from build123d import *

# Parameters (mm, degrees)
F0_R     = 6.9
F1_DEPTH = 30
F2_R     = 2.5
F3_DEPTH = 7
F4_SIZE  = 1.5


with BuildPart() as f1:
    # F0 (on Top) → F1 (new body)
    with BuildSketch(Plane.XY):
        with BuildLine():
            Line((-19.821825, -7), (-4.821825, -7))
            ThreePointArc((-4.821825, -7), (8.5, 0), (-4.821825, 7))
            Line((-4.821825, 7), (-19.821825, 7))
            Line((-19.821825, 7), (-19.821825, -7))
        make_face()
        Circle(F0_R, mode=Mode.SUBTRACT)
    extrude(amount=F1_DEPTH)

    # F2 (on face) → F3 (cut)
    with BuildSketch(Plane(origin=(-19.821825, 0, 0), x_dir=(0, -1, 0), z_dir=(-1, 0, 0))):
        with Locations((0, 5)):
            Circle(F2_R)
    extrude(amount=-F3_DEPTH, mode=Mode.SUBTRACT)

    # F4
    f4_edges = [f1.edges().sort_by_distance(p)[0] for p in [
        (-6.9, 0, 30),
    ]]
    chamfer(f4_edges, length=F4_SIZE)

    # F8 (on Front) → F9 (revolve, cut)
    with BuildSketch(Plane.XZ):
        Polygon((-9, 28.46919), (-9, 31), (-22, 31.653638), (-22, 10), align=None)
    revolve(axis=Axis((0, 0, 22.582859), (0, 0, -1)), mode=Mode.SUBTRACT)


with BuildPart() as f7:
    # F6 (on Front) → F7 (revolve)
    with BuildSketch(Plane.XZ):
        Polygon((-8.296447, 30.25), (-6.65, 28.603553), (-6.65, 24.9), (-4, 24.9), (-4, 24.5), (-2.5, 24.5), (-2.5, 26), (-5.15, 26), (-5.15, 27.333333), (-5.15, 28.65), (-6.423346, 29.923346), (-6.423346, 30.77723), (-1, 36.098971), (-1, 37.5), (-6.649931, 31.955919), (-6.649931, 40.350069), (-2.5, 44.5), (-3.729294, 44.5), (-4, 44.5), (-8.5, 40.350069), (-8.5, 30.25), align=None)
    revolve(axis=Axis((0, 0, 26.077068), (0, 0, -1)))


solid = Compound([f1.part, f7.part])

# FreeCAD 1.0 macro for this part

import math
import FreeCAD as App
import Part
import Sketcher
from FreeCAD import Vector
Q = App.Units.Quantity


def edges_at(feature, points):
    """Names of the edges that pass closest to the given points."""
    edges = feature.Shape.Edges
    near = lambda p: min(range(len(edges)), key=lambda i: edges[i].distToShape(Part.Vertex(*p))[0])
    return sorted({f"Edge{near(p) + 1}" for p in points})

doc = App.newDocument("Part")
params = doc.addObject("Spreadsheet::Sheet", "Params")
for row, (alias, value) in enumerate([
    ("sketch1_diameter", "13.8 mm"),
    ("sketch1_radius", "8.5 mm"),
    ("sketch1_width", "15 mm"),
    ("sketch1_height", "14 mm"),
    ("pad1_length", "30 mm"),
    ("sketch2_diameter", "5 mm"),
    ("pocket1_length", "7 mm"),
    ("chamfer_size", "1.5 mm"),
    ("groove_angle", "360 deg"),
    ("sketch4_width", "1.5 mm"),
    ("sketch4_height", "0.4 mm"),
    ("sketch4_width2", "2.65 mm"),
    ("revolution_angle", "360 deg"),
], start=1):
    params.set(f"A{row}", alias)
    params.set(f"B{row}", "=" + value)
    params.setAlias(f"B{row}", alias)

body = doc.addObject("PartDesign::Body", "Body")

# Sketch on XY plane
sketch1 = doc.addObject("Sketcher::SketchObject", "Sketch")
body.addObject(sketch1)
sketch1.AttachmentSupport = (doc.XY_Plane, [""])
sketch1.MapMode = "FlatFace"
sketch1.addGeometry([
    Part.LineSegment(Vector(-20, -7, 0), Vector(-5, -7, 0)),  # 0
    Part.ArcOfCircle(Part.Circle(Vector(0, 0, 0), Vector(0, 0, 1), 8), math.radians(-125), math.radians(125)),  # 1
    Part.LineSegment(Vector(-5, 7, 0), Vector(-20, 7, 0)),  # 2
    Part.LineSegment(Vector(-20, 7, 0), Vector(-20, -7, 0)),  # 3
    Part.Circle(Vector(0, 0, 0), Vector(0, 0, 1), 7),  # 4
], False)
sketch1.addConstraint([
    Sketcher.Constraint("Coincident", 0, 2, 1, 1),
    Sketcher.Constraint("Coincident", 1, 2, 2, 1),
    Sketcher.Constraint("Coincident", 2, 2, 3, 1),
    Sketcher.Constraint("Coincident", 3, 2, 0, 1),
    Sketcher.Constraint("Horizontal", 0),
    Sketcher.Constraint("Horizontal", 2),
    Sketcher.Constraint("Vertical", 3),
    Sketcher.Constraint("Coincident", 1, 3, -1, 1),
    Sketcher.Constraint("Coincident", 4, 3, -1, 1),
    Sketcher.Constraint("Vertical", 0, 2, 1, 2),
    Sketcher.Constraint("Diameter", 4, Q("13.8 mm")),
    Sketcher.Constraint("Radius", 1, Q("8.5 mm")),
    Sketcher.Constraint("DistanceX", 0, 1, 0, 2, Q("15 mm")),
    Sketcher.Constraint("DistanceY", 3, 2, 3, 1, Q("14 mm")),
])
sketch1.setExpression("Constraints[10]", "Params.sketch1_diameter")
sketch1.setExpression("Constraints[11]", "Params.sketch1_radius")
sketch1.setExpression("Constraints[12]", "Params.sketch1_width")
sketch1.setExpression("Constraints[13]", "Params.sketch1_height")
pad1 = doc.addObject("PartDesign::Pad", "Pad")
body.addObject(pad1)
pad1.Profile = sketch1
pad1.setExpression("Length", "Params.pad1_length")

# Sketch on YZ plane
sketch2 = doc.addObject("Sketcher::SketchObject", "Sketch001")
body.addObject(sketch2)
sketch2.AttachmentSupport = (doc.YZ_Plane, [""])
sketch2.MapMode = "FlatFace"
sketch2.AttachmentOffset = App.Placement(Vector(0, 0, -19.821825), App.Rotation())
sketch2.addGeometry(Part.Circle(Vector(0, 5, 0), Vector(0, 0, 1), 2.5), False)
sketch2.addConstraint([
    Sketcher.Constraint("PointOnObject", 0, 3, -2),
    Sketcher.Constraint("Diameter", 0, Q("5 mm")),
    Sketcher.Constraint("DistanceY", -1, 1, 0, 3, Q("5 mm")),
])
sketch2.setExpression("Constraints[1]", "Params.sketch2_diameter")
pocket1 = doc.addObject("PartDesign::Pocket", "Pocket")
body.addObject(pocket1)
pocket1.Profile = sketch2
pocket1.setExpression("Length", "Params.pocket1_length")
pocket1.Reversed = True
doc.recompute()

chamfer = doc.addObject("PartDesign::Chamfer", "Chamfer")
body.addObject(chamfer)
chamfer.Base = (pocket1, edges_at(pocket1, [(-6.9, 0, 30)]))
chamfer.setExpression("Size", "Params.chamfer_size")

# Sketch on XZ plane
sketch3 = doc.addObject("Sketcher::SketchObject", "Sketch002")
body.addObject(sketch3)
sketch3.AttachmentSupport = (doc.XZ_Plane, [""])
sketch3.MapMode = "FlatFace"
sketch3.addGeometry([
    Part.LineSegment(Vector(-9, 28.5, 0), Vector(-9, 31, 0)),
    Part.LineSegment(Vector(-9, 31, 0), Vector(-22, 31.7, 0)),
    Part.LineSegment(Vector(-22, 31.7, 0), Vector(-22, 10, 0)),
    Part.LineSegment(Vector(-22, 10, 0), Vector(-9, 28.5, 0)),
], False)
sketch3.addConstraint([
    Sketcher.Constraint("Coincident", 0, 2, 1, 1),
    Sketcher.Constraint("Coincident", 1, 2, 2, 1),
    Sketcher.Constraint("Coincident", 2, 2, 3, 1),
    Sketcher.Constraint("Coincident", 3, 2, 0, 1),
    Sketcher.Constraint("Vertical", 0),
    Sketcher.Constraint("Vertical", 2),
    Sketcher.Constraint("DistanceX", 0, 2, -1, 1, Q("9 mm")),
    Sketcher.Constraint("DistanceY", -1, 1, 0, 2, Q("31 mm")),
    Sketcher.Constraint("DistanceX", 1, 2, -1, 1, Q("22 mm")),
    Sketcher.Constraint("DistanceY", -1, 1, 2, 2, Q("10 mm")),
    Sketcher.Constraint("DistanceY", 0, 1, 0, 2, Q("2.53081 mm")),
    Sketcher.Constraint("DistanceY", 2, 2, 2, 1, Q("21.653638 mm")),
])
groove = doc.addObject("PartDesign::Groove", "Groove")
body.addObject(groove)
groove.Profile = sketch3
groove.ReferenceAxis = (sketch3, ["V_Axis"])
groove.setExpression("Angle", "Params.groove_angle")
body2 = doc.addObject("PartDesign::Body", "Body001")

# Sketch on XZ plane
sketch4 = doc.addObject("Sketcher::SketchObject", "Sketch003")
body2.addObject(sketch4)
sketch4.AttachmentSupport = (doc.getObject("XZ_Plane001"), [""])
sketch4.MapMode = "FlatFace"
sketch4.addGeometry([
    Part.LineSegment(Vector(-8.3, 30.25, 0), Vector(-6.65, 28.6, 0)),  # 0
    Part.LineSegment(Vector(-6.65, 28.6, 0), Vector(-6.65, 24.9, 0)),  # 1
    Part.LineSegment(Vector(-6.65, 24.9, 0), Vector(-4, 24.9, 0)),  # 2
    Part.LineSegment(Vector(-4, 24.9, 0), Vector(-4, 24.5, 0)),  # 3
    Part.LineSegment(Vector(-4, 24.5, 0), Vector(-2.5, 24.5, 0)),  # 4
    Part.LineSegment(Vector(-2.5, 24.5, 0), Vector(-2.5, 26, 0)),  # 5
    Part.LineSegment(Vector(-2.5, 26, 0), Vector(-5.15, 26, 0)),  # 6
    Part.LineSegment(Vector(-5.15, 26, 0), Vector(-5.15, 28.65, 0)),  # 7
    Part.LineSegment(Vector(-5.15, 28.65, 0), Vector(-6.42, 29.92, 0)),  # 8
    Part.LineSegment(Vector(-6.42, 29.92, 0), Vector(-6.42, 30.78, 0)),  # 9
    Part.LineSegment(Vector(-6.42, 30.78, 0), Vector(-1, 36.1, 0)),  # 10
    Part.LineSegment(Vector(-1, 36.1, 0), Vector(-1, 37.5, 0)),  # 11
    Part.LineSegment(Vector(-1, 37.5, 0), Vector(-6.65, 31.96, 0)),  # 12
    Part.LineSegment(Vector(-6.65, 31.96, 0), Vector(-6.65, 40.35, 0)),  # 13
    Part.LineSegment(Vector(-6.65, 40.35, 0), Vector(-2.5, 44.5, 0)),  # 14
    Part.LineSegment(Vector(-2.5, 44.5, 0), Vector(-4, 44.5, 0)),  # 15
    Part.LineSegment(Vector(-4, 44.5, 0), Vector(-8.5, 40.35, 0)),  # 16
    Part.LineSegment(Vector(-8.5, 40.35, 0), Vector(-8.5, 30.25, 0)),  # 17
    Part.LineSegment(Vector(-8.5, 30.25, 0), Vector(-8.3, 30.25, 0)),  # 18
], False)
sketch4.addConstraint([
    Sketcher.Constraint("Coincident", 0, 2, 1, 1),
    Sketcher.Constraint("Coincident", 1, 2, 2, 1),
    Sketcher.Constraint("Coincident", 2, 2, 3, 1),
    Sketcher.Constraint("Coincident", 3, 2, 4, 1),
    Sketcher.Constraint("Coincident", 4, 2, 5, 1),
    Sketcher.Constraint("Coincident", 5, 2, 6, 1),
    Sketcher.Constraint("Coincident", 6, 2, 7, 1),
    Sketcher.Constraint("Coincident", 7, 2, 8, 1),
    Sketcher.Constraint("Coincident", 8, 2, 9, 1),
    Sketcher.Constraint("Coincident", 9, 2, 10, 1),
    Sketcher.Constraint("Coincident", 10, 2, 11, 1),
    Sketcher.Constraint("Coincident", 11, 2, 12, 1),
    Sketcher.Constraint("Coincident", 12, 2, 13, 1),
    Sketcher.Constraint("Coincident", 13, 2, 14, 1),
    Sketcher.Constraint("Coincident", 14, 2, 15, 1),
    Sketcher.Constraint("Coincident", 15, 2, 16, 1),
    Sketcher.Constraint("Coincident", 16, 2, 17, 1),
    Sketcher.Constraint("Coincident", 17, 2, 18, 1),
    Sketcher.Constraint("Coincident", 18, 2, 0, 1),
    Sketcher.Constraint("Vertical", 1),
    Sketcher.Constraint("Horizontal", 2),
    Sketcher.Constraint("Vertical", 3),
    Sketcher.Constraint("Horizontal", 4),
    Sketcher.Constraint("Vertical", 5),
    Sketcher.Constraint("Horizontal", 6),
    Sketcher.Constraint("Vertical", 7),
    Sketcher.Constraint("Vertical", 9),
    Sketcher.Constraint("Vertical", 11),
    Sketcher.Constraint("Vertical", 13),
    Sketcher.Constraint("Horizontal", 15),
    Sketcher.Constraint("Vertical", 17),
    Sketcher.Constraint("Horizontal", 18),
    Sketcher.Constraint("Parallel", 0, 8),
    Sketcher.Constraint("Parallel", 10, 12),
    Sketcher.Constraint("Perpendicular", 8, 14),
    Sketcher.Constraint("Horizontal", 13, 2, 16, 2),
    Sketcher.Constraint("Vertical", 5, 2, 14, 2),
    Sketcher.Constraint("Vertical", 3, 2, 15, 2),
    Sketcher.Constraint("Equal", 2, 6),
    Sketcher.Constraint("Equal", 15, 5),
    Sketcher.Constraint("Equal", 6, 7),
    Sketcher.Constraint("Angle", 0, Q("-45 deg")),
    Sketcher.Constraint("DistanceX", 4, 1, 4, 2, Q("1.5 mm")),
    Sketcher.Constraint("DistanceY", 3, 2, 3, 1, Q("0.4 mm")),
    Sketcher.Constraint("DistanceX", 2, 2, -1, 1, Q("4 mm")),
    Sketcher.Constraint("DistanceY", -1, 1, 5, 2, Q("26 mm")),
    Sketcher.Constraint("DistanceX", 10, 2, -1, 1, Q("1 mm")),
    Sketcher.Constraint("DistanceY", 11, 2, 14, 2, Q("7 mm")),
    Sketcher.Constraint("DistanceX", 16, 2, 14, 2, Q("6 mm")),
    Sketcher.Constraint("DistanceX", 2, 1, 2, 2, Q("2.65 mm")),
    Sketcher.Constraint("DistanceY", -1, 1, 11, 2, Q("37.5 mm")),
    Sketcher.Constraint("DistanceY", 7, 2, 17, 2, Q("1.6 mm")),
    Sketcher.Constraint("DistanceY", 11, 1, 11, 2, Q("1.401029 mm")),
    Sketcher.Constraint("DistanceY", 13, 1, 13, 2, Q("8.39415 mm")),
    Sketcher.Constraint("DistanceY", 17, 2, 17, 1, Q("10.100069 mm")),
    Sketcher.Constraint("DistanceX", 18, 2, 8, 2, Q("1.873101 mm")),
    Sketcher.Constraint("DistanceX", 18, 1, 18, 2, Q("0.203553 mm")),
])
sketch4.setExpression("Constraints[42]", "Params.sketch4_width")
sketch4.setExpression("Constraints[43]", "Params.sketch4_height")
sketch4.setExpression("Constraints[49]", "Params.sketch4_width2")
revolution = doc.addObject("PartDesign::Revolution", "Revolution")
body2.addObject(revolution)
revolution.Profile = sketch4
revolution.ReferenceAxis = (sketch4, ["V_Axis"])
revolution.setExpression("Angle", "Params.revolution_angle")

doc.recompute()
